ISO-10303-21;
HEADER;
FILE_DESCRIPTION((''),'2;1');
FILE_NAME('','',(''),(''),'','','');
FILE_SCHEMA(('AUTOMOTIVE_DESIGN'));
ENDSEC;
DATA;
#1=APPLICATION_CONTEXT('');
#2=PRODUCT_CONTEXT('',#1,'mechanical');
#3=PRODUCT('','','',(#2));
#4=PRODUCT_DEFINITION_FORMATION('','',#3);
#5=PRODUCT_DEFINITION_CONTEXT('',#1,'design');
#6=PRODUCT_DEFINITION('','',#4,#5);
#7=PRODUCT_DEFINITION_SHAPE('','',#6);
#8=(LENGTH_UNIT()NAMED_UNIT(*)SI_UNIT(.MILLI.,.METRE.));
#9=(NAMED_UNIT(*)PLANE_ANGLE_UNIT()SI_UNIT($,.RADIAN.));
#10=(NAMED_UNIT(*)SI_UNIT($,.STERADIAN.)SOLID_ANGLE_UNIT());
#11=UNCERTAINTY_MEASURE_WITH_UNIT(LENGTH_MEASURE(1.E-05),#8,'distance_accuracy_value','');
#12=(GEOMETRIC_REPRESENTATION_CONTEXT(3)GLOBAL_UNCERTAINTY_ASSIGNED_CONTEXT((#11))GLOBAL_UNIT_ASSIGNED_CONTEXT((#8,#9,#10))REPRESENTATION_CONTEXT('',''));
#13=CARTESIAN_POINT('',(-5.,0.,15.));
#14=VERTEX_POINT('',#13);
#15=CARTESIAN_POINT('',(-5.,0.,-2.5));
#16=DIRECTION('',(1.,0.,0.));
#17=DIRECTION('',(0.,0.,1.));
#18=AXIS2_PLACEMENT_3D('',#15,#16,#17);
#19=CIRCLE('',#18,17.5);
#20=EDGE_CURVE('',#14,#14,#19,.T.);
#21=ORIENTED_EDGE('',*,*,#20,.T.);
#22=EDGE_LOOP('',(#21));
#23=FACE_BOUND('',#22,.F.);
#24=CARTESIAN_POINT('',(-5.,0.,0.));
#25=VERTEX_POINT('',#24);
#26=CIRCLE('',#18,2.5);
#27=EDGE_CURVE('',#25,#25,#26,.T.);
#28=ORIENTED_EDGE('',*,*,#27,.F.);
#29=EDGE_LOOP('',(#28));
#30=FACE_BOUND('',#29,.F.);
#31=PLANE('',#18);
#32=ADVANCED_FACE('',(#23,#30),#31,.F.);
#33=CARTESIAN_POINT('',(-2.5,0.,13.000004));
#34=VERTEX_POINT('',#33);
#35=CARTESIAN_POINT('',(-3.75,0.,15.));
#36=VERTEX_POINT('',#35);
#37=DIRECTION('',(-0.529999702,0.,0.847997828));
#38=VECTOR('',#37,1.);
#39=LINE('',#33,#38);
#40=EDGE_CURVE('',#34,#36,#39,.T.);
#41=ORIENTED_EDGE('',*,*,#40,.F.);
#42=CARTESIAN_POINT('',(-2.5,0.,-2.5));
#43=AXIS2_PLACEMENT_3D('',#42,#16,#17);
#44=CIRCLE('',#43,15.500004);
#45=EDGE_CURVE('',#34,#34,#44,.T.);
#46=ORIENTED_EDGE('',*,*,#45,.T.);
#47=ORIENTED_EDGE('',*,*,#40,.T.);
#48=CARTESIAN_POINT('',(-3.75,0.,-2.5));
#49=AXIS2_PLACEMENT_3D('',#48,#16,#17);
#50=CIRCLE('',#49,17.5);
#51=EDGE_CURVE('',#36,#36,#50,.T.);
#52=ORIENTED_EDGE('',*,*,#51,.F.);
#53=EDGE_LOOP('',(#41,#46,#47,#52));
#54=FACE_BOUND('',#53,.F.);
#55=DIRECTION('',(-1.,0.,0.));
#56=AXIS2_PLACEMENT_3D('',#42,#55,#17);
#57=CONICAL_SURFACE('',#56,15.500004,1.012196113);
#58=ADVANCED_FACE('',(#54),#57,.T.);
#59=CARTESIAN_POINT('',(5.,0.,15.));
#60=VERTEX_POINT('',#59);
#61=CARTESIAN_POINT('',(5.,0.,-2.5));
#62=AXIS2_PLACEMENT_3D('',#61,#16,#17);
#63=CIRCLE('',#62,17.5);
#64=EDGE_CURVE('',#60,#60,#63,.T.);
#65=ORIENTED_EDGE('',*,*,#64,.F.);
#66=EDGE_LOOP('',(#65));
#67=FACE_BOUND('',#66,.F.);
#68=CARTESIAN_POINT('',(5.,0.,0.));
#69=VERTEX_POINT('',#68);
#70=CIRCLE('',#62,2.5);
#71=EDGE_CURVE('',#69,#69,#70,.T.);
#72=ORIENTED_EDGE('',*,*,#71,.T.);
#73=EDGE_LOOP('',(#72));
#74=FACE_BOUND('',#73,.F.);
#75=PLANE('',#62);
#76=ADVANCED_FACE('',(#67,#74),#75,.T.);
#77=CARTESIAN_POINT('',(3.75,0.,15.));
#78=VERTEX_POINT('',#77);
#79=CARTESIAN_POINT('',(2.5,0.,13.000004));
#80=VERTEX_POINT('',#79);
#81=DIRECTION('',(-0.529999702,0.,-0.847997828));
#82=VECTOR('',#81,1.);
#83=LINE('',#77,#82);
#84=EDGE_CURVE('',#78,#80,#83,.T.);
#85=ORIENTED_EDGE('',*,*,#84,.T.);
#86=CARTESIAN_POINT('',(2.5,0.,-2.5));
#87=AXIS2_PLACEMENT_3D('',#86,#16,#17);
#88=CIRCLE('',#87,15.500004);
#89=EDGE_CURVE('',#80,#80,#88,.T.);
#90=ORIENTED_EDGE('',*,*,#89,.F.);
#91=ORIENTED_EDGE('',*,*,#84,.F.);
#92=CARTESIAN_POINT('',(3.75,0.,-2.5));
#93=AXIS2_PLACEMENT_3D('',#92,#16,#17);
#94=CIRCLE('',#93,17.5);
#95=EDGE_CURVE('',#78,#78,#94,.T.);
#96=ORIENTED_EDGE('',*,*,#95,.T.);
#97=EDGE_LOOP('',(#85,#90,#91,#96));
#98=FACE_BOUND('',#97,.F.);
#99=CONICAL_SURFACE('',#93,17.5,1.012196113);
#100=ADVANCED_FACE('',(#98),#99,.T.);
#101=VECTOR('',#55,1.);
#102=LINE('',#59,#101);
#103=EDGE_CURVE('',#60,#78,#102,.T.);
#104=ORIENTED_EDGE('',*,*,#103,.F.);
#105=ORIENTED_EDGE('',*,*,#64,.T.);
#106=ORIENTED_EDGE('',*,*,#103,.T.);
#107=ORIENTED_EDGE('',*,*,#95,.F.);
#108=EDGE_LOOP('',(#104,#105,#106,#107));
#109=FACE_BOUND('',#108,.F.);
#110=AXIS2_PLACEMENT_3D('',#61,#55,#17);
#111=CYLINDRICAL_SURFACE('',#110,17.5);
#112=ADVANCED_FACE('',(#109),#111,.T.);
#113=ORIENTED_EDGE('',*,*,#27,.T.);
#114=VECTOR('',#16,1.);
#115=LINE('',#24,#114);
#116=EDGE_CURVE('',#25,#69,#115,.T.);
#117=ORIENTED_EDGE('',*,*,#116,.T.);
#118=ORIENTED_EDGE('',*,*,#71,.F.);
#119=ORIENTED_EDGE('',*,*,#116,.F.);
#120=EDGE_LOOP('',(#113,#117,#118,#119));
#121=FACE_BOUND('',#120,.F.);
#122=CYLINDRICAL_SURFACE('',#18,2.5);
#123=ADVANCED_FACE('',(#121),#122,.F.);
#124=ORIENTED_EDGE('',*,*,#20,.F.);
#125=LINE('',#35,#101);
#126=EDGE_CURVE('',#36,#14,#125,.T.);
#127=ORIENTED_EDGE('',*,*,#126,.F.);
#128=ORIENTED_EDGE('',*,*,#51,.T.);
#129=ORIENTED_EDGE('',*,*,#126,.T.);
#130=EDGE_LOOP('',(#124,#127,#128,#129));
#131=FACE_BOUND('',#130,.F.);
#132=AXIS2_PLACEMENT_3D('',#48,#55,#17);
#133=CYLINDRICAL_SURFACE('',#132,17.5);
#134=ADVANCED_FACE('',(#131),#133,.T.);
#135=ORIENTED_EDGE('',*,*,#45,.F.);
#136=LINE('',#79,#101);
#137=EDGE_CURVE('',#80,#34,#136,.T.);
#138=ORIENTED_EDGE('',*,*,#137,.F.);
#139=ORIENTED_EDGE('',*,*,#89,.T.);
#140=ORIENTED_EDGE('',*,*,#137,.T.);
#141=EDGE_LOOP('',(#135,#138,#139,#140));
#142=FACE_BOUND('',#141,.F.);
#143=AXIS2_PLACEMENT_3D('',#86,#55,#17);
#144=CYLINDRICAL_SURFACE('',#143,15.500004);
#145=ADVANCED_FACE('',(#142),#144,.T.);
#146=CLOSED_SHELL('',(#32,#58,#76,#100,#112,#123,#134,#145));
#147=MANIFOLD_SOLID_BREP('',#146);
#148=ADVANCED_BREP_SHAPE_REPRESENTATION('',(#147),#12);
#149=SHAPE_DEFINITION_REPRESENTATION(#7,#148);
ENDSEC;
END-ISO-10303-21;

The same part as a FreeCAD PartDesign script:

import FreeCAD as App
import Part
import Sketcher


def add_polygon(sketch, points):
    """Adds a closed chain of lines whose ends are joined by coincident constraints."""
    first, n = sketch.GeometryCount, len(points)
    for a, b in zip(points, points[1:] + points[:1]):
        sketch.addGeometry(Part.LineSegment(App.Vector(*a, 0), App.Vector(*b, 0)), False)
    for i in range(n):
        sketch.addConstraint(Sketcher.Constraint("Coincident", first + i, 2, first + (i + 1) % n, 1))

doc = App.newDocument("Part")
params = doc.addObject("Spreadsheet::Sheet", "Params")
for row, (alias, value) in enumerate([
    ("sketch1_width", "5 mm"),
    ("sketch1_width2", "10 mm"),
    ("sketch1_height", "15 mm"),
    ("sketch1_width3", "1.25 mm"),
    ("revolution_angle", "360 deg"),
], start=1):
    params.set(f"A{row}", alias)
    params.set(f"B{row}", "=" + value)
    params.setAlias(f"B{row}", alias)

body = doc.addObject("PartDesign::Body", "Body")

# Sketch on XZ plane
sketch1 = body.newObject("Sketcher::SketchObject", "Sketch")
sketch1.AttachmentSupport = (doc.getObject("XZ_Plane"), [""])
sketch1.MapMode = "FlatFace"
add_polygon(sketch1, [(5, 15), (3.75, 15), (2.5, 13.000004), (-2.5, 13.000004), (-3.75, 15), (-5, 15), (-5, 0), (5, 0)])  # lines 0-7
sketch1.addGeometry(Part.LineSegment(App.Vector(-5, -2.5, 0), App.Vector(5, -2.5, 0)), True)  # axis
sketch1.addConstraint([
    Sketcher.Constraint("Horizontal", 0),
    Sketcher.Constraint("Horizontal", 2),
    Sketcher.Constraint("Horizontal", 4),
    Sketcher.Constraint("Vertical", 5),
    Sketcher.Constraint("Horizontal", 6),
    Sketcher.Constraint("Vertical", 7),
    Sketcher.Constraint("Horizontal", 8),
    Sketcher.Constraint("Symmetric", 5, 2, 6, 2, -1, 1),
    Sketcher.Constraint("Symmetric", 0, 2, 3, 2, -2),
    Sketcher.Constraint("Vertical", 5, 2, 8, 1),
    Sketcher.Constraint("Vertical", 7, 2, 8, 2),
    Sketcher.Constraint("Equal", 1, 3),
    Sketcher.Constraint("DistanceX", 2, 2, 2, 1, 5.0),
    Sketcher.Constraint("DistanceX", 6, 1, 6, 2, 10.0),
    Sketcher.Constraint("DistanceY", 5, 2, 5, 1, 15.0),
    Sketcher.Constraint("DistanceX", 0, 2, 0, 1, 1.25),
    Sketcher.Constraint("DistanceY", 8, 1, -1, 1, 2.5),
    Sketcher.Constraint("Distance", 1, 2.358492),
])
sketch1.setExpression("Constraints[20]", "Params.sketch1_width")
sketch1.setExpression("Constraints[21]", "Params.sketch1_width2")
sketch1.setExpression("Constraints[22]", "Params.sketch1_height")
sketch1.setExpression("Constraints[23]", "Params.sketch1_width3")
revolution = body.newObject("PartDesign::Revolution", "Revolution")
revolution.Profile = sketch1
revolution.ReferenceAxis = (sketch1, ["Axis0"])
revolution.setExpression("Angle", "Params.revolution_angle")

doc.recompute()
